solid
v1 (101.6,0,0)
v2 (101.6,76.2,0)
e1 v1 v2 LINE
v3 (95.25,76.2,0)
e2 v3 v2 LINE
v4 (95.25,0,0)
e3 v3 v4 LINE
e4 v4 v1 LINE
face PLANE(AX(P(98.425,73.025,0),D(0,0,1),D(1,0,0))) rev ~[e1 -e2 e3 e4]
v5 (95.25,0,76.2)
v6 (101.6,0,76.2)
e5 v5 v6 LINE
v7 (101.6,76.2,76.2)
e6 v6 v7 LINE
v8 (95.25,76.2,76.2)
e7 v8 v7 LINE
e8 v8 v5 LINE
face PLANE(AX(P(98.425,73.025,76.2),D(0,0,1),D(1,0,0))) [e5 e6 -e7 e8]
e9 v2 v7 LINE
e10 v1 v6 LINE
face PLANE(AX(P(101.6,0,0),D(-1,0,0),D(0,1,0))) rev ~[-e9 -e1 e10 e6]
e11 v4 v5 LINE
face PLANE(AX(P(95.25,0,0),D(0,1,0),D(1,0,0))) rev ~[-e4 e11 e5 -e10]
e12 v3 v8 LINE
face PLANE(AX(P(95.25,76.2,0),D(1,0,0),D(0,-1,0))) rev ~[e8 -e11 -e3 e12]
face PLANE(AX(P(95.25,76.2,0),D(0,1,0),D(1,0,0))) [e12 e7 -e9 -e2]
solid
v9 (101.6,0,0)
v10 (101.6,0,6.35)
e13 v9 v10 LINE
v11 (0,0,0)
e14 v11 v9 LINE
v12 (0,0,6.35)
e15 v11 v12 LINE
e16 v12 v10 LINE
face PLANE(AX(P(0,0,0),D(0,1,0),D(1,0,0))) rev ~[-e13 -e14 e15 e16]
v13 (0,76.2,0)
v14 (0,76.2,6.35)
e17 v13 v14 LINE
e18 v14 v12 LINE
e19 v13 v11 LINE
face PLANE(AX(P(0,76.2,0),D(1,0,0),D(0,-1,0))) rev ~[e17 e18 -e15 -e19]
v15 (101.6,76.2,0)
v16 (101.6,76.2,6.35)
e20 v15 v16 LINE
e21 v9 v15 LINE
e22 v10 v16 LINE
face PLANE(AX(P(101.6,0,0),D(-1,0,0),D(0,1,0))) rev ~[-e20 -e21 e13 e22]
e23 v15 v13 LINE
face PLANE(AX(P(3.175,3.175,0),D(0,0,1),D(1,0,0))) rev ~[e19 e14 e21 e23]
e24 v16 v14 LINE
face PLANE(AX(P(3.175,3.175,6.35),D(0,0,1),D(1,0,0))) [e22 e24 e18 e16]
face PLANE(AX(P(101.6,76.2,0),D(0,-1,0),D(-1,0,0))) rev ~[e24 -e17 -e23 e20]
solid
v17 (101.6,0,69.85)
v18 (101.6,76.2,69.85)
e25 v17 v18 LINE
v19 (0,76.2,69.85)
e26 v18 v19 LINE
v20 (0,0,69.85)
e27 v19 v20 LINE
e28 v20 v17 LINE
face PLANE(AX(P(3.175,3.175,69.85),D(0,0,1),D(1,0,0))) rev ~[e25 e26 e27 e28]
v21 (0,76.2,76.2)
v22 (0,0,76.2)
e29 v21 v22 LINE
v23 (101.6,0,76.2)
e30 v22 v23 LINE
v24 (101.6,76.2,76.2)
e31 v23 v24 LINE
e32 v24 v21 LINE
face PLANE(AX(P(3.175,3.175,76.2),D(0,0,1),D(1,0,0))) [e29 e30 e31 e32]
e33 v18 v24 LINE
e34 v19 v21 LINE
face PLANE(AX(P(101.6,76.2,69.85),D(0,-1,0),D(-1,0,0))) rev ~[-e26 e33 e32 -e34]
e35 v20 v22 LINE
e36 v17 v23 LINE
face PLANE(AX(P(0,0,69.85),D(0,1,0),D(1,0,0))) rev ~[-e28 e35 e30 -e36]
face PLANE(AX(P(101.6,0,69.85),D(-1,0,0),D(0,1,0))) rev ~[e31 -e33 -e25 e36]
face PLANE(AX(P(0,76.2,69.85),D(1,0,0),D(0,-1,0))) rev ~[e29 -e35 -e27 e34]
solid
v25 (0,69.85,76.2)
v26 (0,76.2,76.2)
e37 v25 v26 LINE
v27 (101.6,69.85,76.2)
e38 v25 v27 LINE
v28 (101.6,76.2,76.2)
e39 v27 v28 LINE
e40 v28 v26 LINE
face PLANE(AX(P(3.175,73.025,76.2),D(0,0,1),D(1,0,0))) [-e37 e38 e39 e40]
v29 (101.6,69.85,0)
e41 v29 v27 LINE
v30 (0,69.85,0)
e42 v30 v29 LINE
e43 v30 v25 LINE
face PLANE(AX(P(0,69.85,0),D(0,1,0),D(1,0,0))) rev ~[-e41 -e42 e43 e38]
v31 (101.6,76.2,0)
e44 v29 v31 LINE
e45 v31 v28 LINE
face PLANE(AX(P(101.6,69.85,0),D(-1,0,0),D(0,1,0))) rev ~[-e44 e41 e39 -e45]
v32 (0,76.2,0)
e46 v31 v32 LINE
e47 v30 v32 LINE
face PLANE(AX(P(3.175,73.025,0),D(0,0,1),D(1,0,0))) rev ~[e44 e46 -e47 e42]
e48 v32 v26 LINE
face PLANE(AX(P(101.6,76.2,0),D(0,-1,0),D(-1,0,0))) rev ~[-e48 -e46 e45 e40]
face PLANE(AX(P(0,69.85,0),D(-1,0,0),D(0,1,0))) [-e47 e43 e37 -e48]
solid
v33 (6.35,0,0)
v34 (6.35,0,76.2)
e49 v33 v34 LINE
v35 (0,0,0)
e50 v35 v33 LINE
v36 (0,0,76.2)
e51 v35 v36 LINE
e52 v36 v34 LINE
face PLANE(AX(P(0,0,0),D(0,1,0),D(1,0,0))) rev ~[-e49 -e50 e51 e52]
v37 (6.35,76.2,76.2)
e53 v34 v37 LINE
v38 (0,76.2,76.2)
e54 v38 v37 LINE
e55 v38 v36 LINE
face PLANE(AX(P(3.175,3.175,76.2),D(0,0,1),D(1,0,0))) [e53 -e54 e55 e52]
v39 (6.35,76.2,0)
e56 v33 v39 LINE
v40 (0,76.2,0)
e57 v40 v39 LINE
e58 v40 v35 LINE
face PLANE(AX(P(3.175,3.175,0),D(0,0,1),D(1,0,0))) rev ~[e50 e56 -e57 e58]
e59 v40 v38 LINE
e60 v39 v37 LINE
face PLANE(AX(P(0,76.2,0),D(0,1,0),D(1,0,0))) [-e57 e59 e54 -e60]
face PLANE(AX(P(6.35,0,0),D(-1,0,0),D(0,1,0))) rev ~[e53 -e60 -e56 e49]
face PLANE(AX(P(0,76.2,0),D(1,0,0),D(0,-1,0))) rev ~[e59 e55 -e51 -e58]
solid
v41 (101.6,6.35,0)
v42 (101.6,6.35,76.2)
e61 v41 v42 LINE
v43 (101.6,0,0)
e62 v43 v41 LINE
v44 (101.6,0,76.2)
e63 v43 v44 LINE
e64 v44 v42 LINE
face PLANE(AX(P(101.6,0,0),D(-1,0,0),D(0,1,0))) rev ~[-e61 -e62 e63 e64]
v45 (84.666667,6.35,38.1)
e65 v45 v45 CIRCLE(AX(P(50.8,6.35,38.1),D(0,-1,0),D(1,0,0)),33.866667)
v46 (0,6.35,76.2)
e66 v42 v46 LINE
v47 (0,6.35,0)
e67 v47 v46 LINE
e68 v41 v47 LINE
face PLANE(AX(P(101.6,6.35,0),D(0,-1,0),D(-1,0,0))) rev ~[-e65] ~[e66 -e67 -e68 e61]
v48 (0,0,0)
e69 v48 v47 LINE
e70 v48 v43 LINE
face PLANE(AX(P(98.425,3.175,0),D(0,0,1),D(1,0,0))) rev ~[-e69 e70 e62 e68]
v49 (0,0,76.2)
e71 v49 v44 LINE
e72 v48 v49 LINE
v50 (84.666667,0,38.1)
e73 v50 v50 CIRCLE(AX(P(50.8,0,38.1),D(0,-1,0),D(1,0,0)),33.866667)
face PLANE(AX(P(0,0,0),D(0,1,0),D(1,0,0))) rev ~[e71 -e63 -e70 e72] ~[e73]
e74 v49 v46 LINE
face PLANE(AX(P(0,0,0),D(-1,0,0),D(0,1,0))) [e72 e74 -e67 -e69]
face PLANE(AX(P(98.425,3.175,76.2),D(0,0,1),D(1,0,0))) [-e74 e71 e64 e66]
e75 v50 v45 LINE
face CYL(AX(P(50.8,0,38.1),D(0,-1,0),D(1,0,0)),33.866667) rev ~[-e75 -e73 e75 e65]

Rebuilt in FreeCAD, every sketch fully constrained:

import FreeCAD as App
import Part
import Sketcher
from FreeCAD import Vector
Q = App.Units.Quantity

doc = App.newDocument("Part")
params = doc.addObject("Spreadsheet::Sheet", "Params")
for row, (alias, value) in enumerate([
    ("sketch1_width", "4 in"),
    ("sketch1_height", "0.25 in"),
    ("pad1_length", "3 in"),
    ("sketch3_height", "3 in"),
    ("sketch3_width", "0.25 in"),
    ("pad2_length", "3 in"),
    ("sketch4_width", "4 in"),
    ("sketch4_height", "0.25 in"),
    ("pad3_length", "3 in"),
    ("sketch5_height", "3 in"),
    ("sketch5_width", "0.25 in"),
    ("pad4_length", "3 in"),
    ("sketch6_width", "4 in"),
    ("sketch6_height", "3 in"),
    ("pad5_length", "0.25 in"),
    ("sketch7_width", "4 in"),
    ("sketch7_height", "3 in"),
    ("pad6_length", "0.25 in"),
], start=1):
    params.set(f"A{row}", alias)
    params.set(f"B{row}", "=" + value)
    params.setAlias(f"B{row}", alias)

body = doc.addObject("PartDesign::Body", "Body")

# Sketch on XY plane
sketch1 = doc.addObject("Sketcher::SketchObject", "Sketch")
body.addObject(sketch1)
sketch1.AttachmentSupport = (doc.XY_Plane, [""])
sketch1.MapMode = "FlatFace"
sketch1.addGeometry([
    Part.LineSegment(Vector(102, 0, 0), Vector(102, 6, 0)),
    Part.LineSegment(Vector(102, 6, 0), Vector(0, 6, 0)),
    Part.LineSegment(Vector(0, 6, 0), Vector(0, 0, 0)),
    Part.LineSegment(Vector(0, 0, 0), Vector(102, 0, 0)),
], False)
sketch1.addConstraint([
    Sketcher.Constraint("Coincident", 0, 2, 1, 1),
    Sketcher.Constraint("Coincident", 1, 2, 2, 1),
    Sketcher.Constraint("Coincident", 2, 2, 3, 1),
    Sketcher.Constraint("Coincident", 3, 2, 0, 1),
    Sketcher.Constraint("Vertical", 0),
    Sketcher.Constraint("Horizontal", 1),
    Sketcher.Constraint("Vertical", 2),
    Sketcher.Constraint("Horizontal", 3),
    Sketcher.Constraint("Coincident", 2, 2, -1, 1),
    Sketcher.Constraint("DistanceX", 1, 2, 1, 1, Q("4 in")),
    Sketcher.Constraint("DistanceY", 0, 1, 0, 2, Q("0.25 in")),
])
sketch1.setExpression("Constraints[9]", "Params.sketch1_width")
sketch1.setExpression("Constraints[10]", "Params.sketch1_height")
pad1 = doc.addObject("PartDesign::Pad", "Pad")
body.addObject(pad1)
pad1.Profile = sketch1
pad1.setExpression("Length", "Params.pad1_length")

# Sketch on XZ plane
sketch2 = doc.addObject("Sketcher::SketchObject", "Sketch001")
body.addObject(sketch2)
sketch2.AttachmentSupport = (doc.XZ_Plane, [""])
sketch2.MapMode = "FlatFace"
sketch2.addGeometry(Part.Circle(Vector(51, 38, 0), Vector(0, 0, 1), 34), False)
sketch2.addConstraint([
    Sketcher.Constraint("DistanceX", -1, 1, 0, 3, Q("2 in")),
    Sketcher.Constraint("DistanceY", -1, 1, 0, 3, Q("1.5 in")),
    Sketcher.Constraint("Diameter", 0, 67.733333),
])
pocket1 = doc.addObject("PartDesign::Pocket", "Pocket")
body.addObject(pocket1)
pocket1.Profile = sketch2
pocket1.Type = "ThroughAll"
body2 = doc.addObject("PartDesign::Body", "Body001")

# Sketch on XY plane
sketch3 = doc.addObject("Sketcher::SketchObject", "Sketch002")
body2.addObject(sketch3)
sketch3.AttachmentSupport = (doc.getObject("XY_Plane001"), [""])
sketch3.MapMode = "FlatFace"
sketch3.addGeometry([
    Part.LineSegment(Vector(0, 0, 0), Vector(6, 0, 0)),
    Part.LineSegment(Vector(6, 0, 0), Vector(6, 76, 0)),
    Part.LineSegment(Vector(6, 76, 0), Vector(0, 76, 0)),
    Part.LineSegment(Vector(0, 76, 0), Vector(0, 0, 0)),
], False)
sketch3.addConstraint([
    Sketcher.Constraint("Coincident", 0, 2, 1, 1),
    Sketcher.Constraint("Coincident", 1, 2, 2, 1),
    Sketcher.Constraint("Coincident", 2, 2, 3, 1),
    Sketcher.Constraint("Coincident", 3, 2, 0, 1),
    Sketcher.Constraint("Horizontal", 0),
    Sketcher.Constraint("Vertical", 1),
    Sketcher.Constraint("Horizontal", 2),
    Sketcher.Constraint("Vertical", 3),
    Sketcher.Constraint("Coincident", 3, 2, -1, 1),
    Sketcher.Constraint("DistanceY", 1, 1, 1, 2, Q("3 in")),
    Sketcher.Constraint("DistanceX", 0, 1, 0, 2, Q("0.25 in")),
])
sketch3.setExpression("Constraints[9]", "Params.sketch3_height")
sketch3.setExpression("Constraints[10]", "Params.sketch3_width")
pad2 = doc.addObject("PartDesign::Pad", "Pad001")
body2.addObject(pad2)
pad2.Profile = sketch3
pad2.setExpression("Length", "Params.pad2_length")
body3 = doc.addObject("PartDesign::Body", "Body002")

# Sketch on XY plane
sketch4 = doc.addObject("Sketcher::SketchObject", "Sketch003")
body3.addObject(sketch4)
sketch4.AttachmentSupport = (doc.getObject("XY_Plane002"), [""])
sketch4.MapMode = "FlatFace"
sketch4.addGeometry([
    Part.LineSegment(Vector(0, 76, 0), Vector(0, 70, 0)),
    Part.LineSegment(Vector(0, 70, 0), Vector(102, 70, 0)),
    Part.LineSegment(Vector(102, 70, 0), Vector(102, 76, 0)),
    Part.LineSegment(Vector(102, 76, 0), Vector(0, 76, 0)),
], False)
sketch4.addConstraint([
    Sketcher.Constraint("Coincident", 0, 2, 1, 1),
    Sketcher.Constraint("Coincident", 1, 2, 2, 1),
    Sketcher.Constraint("Coincident", 2, 2, 3, 1),
    Sketcher.Constraint("Coincident", 3, 2, 0, 1),
    Sketcher.Constraint("Vertical", 0),
    Sketcher.Constraint("Horizontal", 1),
    Sketcher.Constraint("Vertical", 2),
    Sketcher.Constraint("Horizontal", 3),
    Sketcher.Constraint("PointOnObject", 0, 2, -2),
    Sketcher.Constraint("DistanceX", 1, 1, 1, 2, Q("4 in")),
    Sketcher.Constraint("DistanceY", -1, 1, 2, 2, Q("3 in")),
    Sketcher.Constraint("DistanceY", 0, 2, 0, 1, Q("0.25 in")),
])
sketch4.setExpression("Constraints[9]", "Params.sketch4_width")
sketch4.setExpression("Constraints[11]", "Params.sketch4_height")
pad3 = doc.addObject("PartDesign::Pad", "Pad002")
body3.addObject(pad3)
pad3.Profile = sketch4
pad3.setExpression("Length", "Params.pad3_length")
body4 = doc.addObject("PartDesign::Body", "Body003")

# Sketch on XY plane
sketch5 = doc.addObject("Sketcher::SketchObject", "Sketch004")
body4.addObject(sketch5)
sketch5.AttachmentSupport = (doc.getObject("XY_Plane003"), [""])
sketch5.MapMode = "FlatFace"
sketch5.addGeometry([
    Part.LineSegment(Vector(95, 76, 0), Vector(95, 0, 0)),
    Part.LineSegment(Vector(95, 0, 0), Vector(102, 0, 0)),
    Part.LineSegment(Vector(102, 0, 0), Vector(102, 76, 0)),
    Part.LineSegment(Vector(102, 76, 0), Vector(95, 76, 0)),
], False)
sketch5.addConstraint([
    Sketcher.Constraint("Coincident", 0, 2, 1, 1),
    Sketcher.Constraint("Coincident", 1, 2, 2, 1),
    Sketcher.Constraint("Coincident", 2, 2, 3, 1),
    Sketcher.Constraint("Coincident", 3, 2, 0, 1),
    Sketcher.Constraint("Vertical", 0),
    Sketcher.Constraint("Horizontal", 1),
    Sketcher.Constraint("Vertical", 2),
    Sketcher.Constraint("Horizontal", 3),
    Sketcher.Constraint("PointOnObject", 0, 2, -1),
    Sketcher.Constraint("DistanceY", 0, 2, 0, 1, Q("3 in")),
    Sketcher.Constraint("DistanceX", -1, 1, 1, 2, Q("4 in")),
    Sketcher.Constraint("DistanceX", 1, 1, 1, 2, Q("0.25 in")),
])
sketch5.setExpression("Constraints[9]", "Params.sketch5_height")
sketch5.setExpression("Constraints[11]", "Params.sketch5_width")
pad4 = doc.addObject("PartDesign::Pad", "Pad003")
body4.addObject(pad4)
pad4.Profile = sketch5
pad4.setExpression("Length", "Params.pad4_length")
body5 = doc.addObject("PartDesign::Body", "Body004")

# Sketch on XY plane
sketch6 = doc.addObject("Sketcher::SketchObject", "Sketch005")
body5.addObject(sketch6)
sketch6.AttachmentSupport = (doc.getObject("XY_Plane004"), [""])
sketch6.MapMode = "FlatFace"
sketch6.AttachmentOffset = App.Placement(Vector(0, 0, 2.75 * 25.4), App.Rotation())
sketch6.addGeometry([
    Part.LineSegment(Vector(0, 0, 0), Vector(102, 0, 0)),
    Part.LineSegment(Vector(102, 0, 0), Vector(102, 76, 0)),
    Part.LineSegment(Vector(102, 76, 0), Vector(0, 76, 0)),
    Part.LineSegment(Vector(0, 76, 0), Vector(0, 0, 0)),
], False)
sketch6.addConstraint([
    Sketcher.Constraint("Coincident", 0, 2, 1, 1),
    Sketcher.Constraint("Coincident", 1, 2, 2, 1),
    Sketcher.Constraint("Coincident", 2, 2, 3, 1),
    Sketcher.Constraint("Coincident", 3, 2, 0, 1),
    Sketcher.Constraint("Horizontal", 0),
    Sketcher.Constraint("Vertical", 1),
    Sketcher.Constraint("Horizontal", 2),
    Sketcher.Constraint("Vertical", 3),
    Sketcher.Constraint("Coincident", 3, 2, -1, 1),
    Sketcher.Constraint("DistanceX", 0, 1, 0, 2, Q("4 in")),
    Sketcher.Constraint("DistanceY", 1, 1, 1, 2, Q("3 in")),
])
sketch6.setExpression("Constraints[9]", "Params.sketch6_width")
sketch6.setExpression("Constraints[10]", "Params.sketch6_height")
pad5 = doc.addObject("PartDesign::Pad", "Pad004")
body5.addObject(pad5)
pad5.Profile = sketch6
pad5.setExpression("Length", "Params.pad5_length")
body6 = doc.addObject("PartDesign::Body", "Body005")

# Sketch on XY plane
sketch7 = doc.addObject("Sketcher::SketchObject", "Sketch006")
body6.addObject(sketch7)
sketch7.AttachmentSupport = (doc.getObject("XY_Plane005"), [""])
sketch7.MapMode = "FlatFace"
sketch7.addGeometry([
    Part.LineSegment(Vector(0, 0, 0), Vector(102, 0, 0)),
    Part.LineSegment(Vector(102, 0, 0), Vector(102, 76, 0)),
    Part.LineSegment(Vector(102, 76, 0), Vector(0, 76, 0)),
    Part.LineSegment(Vector(0, 76, 0), Vector(0, 0, 0)),
], False)
sketch7.addConstraint([
    Sketcher.Constraint("Coincident", 0, 2, 1, 1),
    Sketcher.Constraint("Coincident", 1, 2, 2, 1),
    Sketcher.Constraint("Coincident", 2, 2, 3, 1),
    Sketcher.Constraint("Coincident", 3, 2, 0, 1),
    Sketcher.Constraint("Horizontal", 0),
    Sketcher.Constraint("Vertical", 1),
    Sketcher.Constraint("Horizontal", 2),
    Sketcher.Constraint("Vertical", 3),
    Sketcher.Constraint("Coincident", 3, 2, -1, 1),
    Sketcher.Constraint("DistanceX", 0, 1, 0, 2, Q("4 in")),
    Sketcher.Constraint("DistanceY", 1, 1, 1, 2, Q("3 in")),
])
sketch7.setExpression("Constraints[9]", "Params.sketch7_width")
sketch7.setExpression("Constraints[10]", "Params.sketch7_height")
pad6 = doc.addObject("PartDesign::Pad", "Pad005")
body6.addObject(pad6)
pad6.Profile = sketch7
pad6.setExpression("Length", "Params.pad6_length")

doc.recompute()
